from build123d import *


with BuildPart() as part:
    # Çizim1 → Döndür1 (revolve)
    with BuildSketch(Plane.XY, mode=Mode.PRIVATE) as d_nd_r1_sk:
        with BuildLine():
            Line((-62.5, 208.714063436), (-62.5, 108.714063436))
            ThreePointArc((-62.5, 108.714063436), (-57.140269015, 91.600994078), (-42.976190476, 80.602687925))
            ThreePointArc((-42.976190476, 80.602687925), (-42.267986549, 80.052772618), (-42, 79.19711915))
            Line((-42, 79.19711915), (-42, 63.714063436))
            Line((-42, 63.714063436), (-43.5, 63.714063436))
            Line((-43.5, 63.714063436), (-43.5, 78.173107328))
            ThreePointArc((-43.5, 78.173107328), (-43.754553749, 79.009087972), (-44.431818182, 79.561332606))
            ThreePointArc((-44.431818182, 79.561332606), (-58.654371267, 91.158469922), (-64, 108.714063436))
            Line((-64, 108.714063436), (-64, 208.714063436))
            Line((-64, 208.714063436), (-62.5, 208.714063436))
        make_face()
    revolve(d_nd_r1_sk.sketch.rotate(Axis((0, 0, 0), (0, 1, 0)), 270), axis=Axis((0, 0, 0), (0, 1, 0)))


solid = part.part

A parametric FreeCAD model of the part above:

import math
import FreeCAD as App
import Part
import Sketcher
Q = App.Units.Quantity

doc = App.newDocument("Part")
body = doc.addObject("PartDesign::Body", "Body")

sketch1 = body.newObject("Sketcher::SketchObject", "Sketch")
sketch1.AttachmentSupport = (doc.getObject("XY_Plane"), [""])
sketch1.MapMode = "FlatFace"
sketch1.addGeometry([
    Part.LineSegment(App.Vector(-62.5, 108.7, 0), App.Vector(-62.5, 208.7, 0)),
    Part.LineSegment(App.Vector(-62.5, 208.7, 0), App.Vector(-64, 208.7, 0)),
    Part.LineSegment(App.Vector(-64, 208.7, 0), App.Vector(-64, 108.7, 0)),
    Part.ArcOfCircle(Part.Circle(App.Vector(-32.5, 108.7, 0), App.Vector(0, 0, 1), 31.5), math.radians(180), math.radians(248)),
    Part.ArcOfCircle(Part.Circle(App.Vector(-45, 78.2, 0), App.Vector(0, 0, 1), 1.5), math.radians(0), math.radians(68)),
    Part.LineSegment(App.Vector(-43.5, 78.2, 0), App.Vector(-43.5, 63.7, 0)),
    Part.LineSegment(App.Vector(-43.5, 63.7, 0), App.Vector(-42, 63.7, 0)),
    Part.LineSegment(App.Vector(-42, 63.7, 0), App.Vector(-42, 79.2, 0)),
    Part.ArcOfCircle(Part.Circle(App.Vector(-43.5, 79.2, 0), App.Vector(0, 0, 1), 1.5), math.radians(0), math.radians(70)),
    Part.ArcOfCircle(Part.Circle(App.Vector(-32.5, 108.7, 0), App.Vector(0, 0, 1), 30), math.radians(-180), math.radians(-110)),
], False)
sketch1.addConstraint([
    Sketcher.Constraint("Coincident", 0, 2, 1, 1),
    Sketcher.Constraint("Coincident", 1, 2, 2, 1),
    Sketcher.Constraint("Tangent", 2, 2, 3, 1),
    Sketcher.Constraint("Tangent", 3, 2, 4, 2),
    Sketcher.Constraint("Tangent", 4, 1, 5, 1),
    Sketcher.Constraint("Coincident", 5, 2, 6, 1),
    Sketcher.Constraint("Coincident", 6, 2, 7, 1),
    Sketcher.Constraint("Tangent", 7, 2, 8, 1),
    Sketcher.Constraint("Tangent", 8, 2, 9, 2),
    Sketcher.Constraint("Tangent", 9, 1, 0, 1),
    Sketcher.Constraint("Vertical", 0),
    Sketcher.Constraint("Horizontal", 1),
    Sketcher.Constraint("Vertical", 2),
    Sketcher.Constraint("Vertical", 5),
    Sketcher.Constraint("Horizontal", 6),
    Sketcher.Constraint("Vertical", 7),
    Sketcher.Constraint("Coincident", 9, 3, 3, 3),
    Sketcher.Constraint("Equal", 4, 8),
    Sketcher.Constraint("Vertical", 8, 3, 4, 1),
    Sketcher.Constraint("Equal", 1, 6),
    Sketcher.Constraint("Radius", 9, Q("30 mm")),
    Sketcher.Constraint("Radius", 3, Q("31.5 mm")),
    Sketcher.Constraint("DistanceY", 0, 1, 0, 2, Q("100 mm")),
    Sketcher.Constraint("DistanceX", 4, 3, -1, 1, Q("45 mm")),
    Sketcher.Constraint("DistanceX", 1, 2, -1, 1, Q("64 mm")),
    Sketcher.Constraint("DistanceY", 5, 2, 3, 3, Q("45 mm")),
    Sketcher.Constraint("DistanceY", -1, 1, 8, 3, Q("79.197119 mm")),
])
revolution = body.newObject("PartDesign::Revolution", "Revolution")
revolution.Profile = sketch1
revolution.ReferenceAxis = (sketch1, ["V_Axis"])
revolution.Angle = 360

doc.recompute()
